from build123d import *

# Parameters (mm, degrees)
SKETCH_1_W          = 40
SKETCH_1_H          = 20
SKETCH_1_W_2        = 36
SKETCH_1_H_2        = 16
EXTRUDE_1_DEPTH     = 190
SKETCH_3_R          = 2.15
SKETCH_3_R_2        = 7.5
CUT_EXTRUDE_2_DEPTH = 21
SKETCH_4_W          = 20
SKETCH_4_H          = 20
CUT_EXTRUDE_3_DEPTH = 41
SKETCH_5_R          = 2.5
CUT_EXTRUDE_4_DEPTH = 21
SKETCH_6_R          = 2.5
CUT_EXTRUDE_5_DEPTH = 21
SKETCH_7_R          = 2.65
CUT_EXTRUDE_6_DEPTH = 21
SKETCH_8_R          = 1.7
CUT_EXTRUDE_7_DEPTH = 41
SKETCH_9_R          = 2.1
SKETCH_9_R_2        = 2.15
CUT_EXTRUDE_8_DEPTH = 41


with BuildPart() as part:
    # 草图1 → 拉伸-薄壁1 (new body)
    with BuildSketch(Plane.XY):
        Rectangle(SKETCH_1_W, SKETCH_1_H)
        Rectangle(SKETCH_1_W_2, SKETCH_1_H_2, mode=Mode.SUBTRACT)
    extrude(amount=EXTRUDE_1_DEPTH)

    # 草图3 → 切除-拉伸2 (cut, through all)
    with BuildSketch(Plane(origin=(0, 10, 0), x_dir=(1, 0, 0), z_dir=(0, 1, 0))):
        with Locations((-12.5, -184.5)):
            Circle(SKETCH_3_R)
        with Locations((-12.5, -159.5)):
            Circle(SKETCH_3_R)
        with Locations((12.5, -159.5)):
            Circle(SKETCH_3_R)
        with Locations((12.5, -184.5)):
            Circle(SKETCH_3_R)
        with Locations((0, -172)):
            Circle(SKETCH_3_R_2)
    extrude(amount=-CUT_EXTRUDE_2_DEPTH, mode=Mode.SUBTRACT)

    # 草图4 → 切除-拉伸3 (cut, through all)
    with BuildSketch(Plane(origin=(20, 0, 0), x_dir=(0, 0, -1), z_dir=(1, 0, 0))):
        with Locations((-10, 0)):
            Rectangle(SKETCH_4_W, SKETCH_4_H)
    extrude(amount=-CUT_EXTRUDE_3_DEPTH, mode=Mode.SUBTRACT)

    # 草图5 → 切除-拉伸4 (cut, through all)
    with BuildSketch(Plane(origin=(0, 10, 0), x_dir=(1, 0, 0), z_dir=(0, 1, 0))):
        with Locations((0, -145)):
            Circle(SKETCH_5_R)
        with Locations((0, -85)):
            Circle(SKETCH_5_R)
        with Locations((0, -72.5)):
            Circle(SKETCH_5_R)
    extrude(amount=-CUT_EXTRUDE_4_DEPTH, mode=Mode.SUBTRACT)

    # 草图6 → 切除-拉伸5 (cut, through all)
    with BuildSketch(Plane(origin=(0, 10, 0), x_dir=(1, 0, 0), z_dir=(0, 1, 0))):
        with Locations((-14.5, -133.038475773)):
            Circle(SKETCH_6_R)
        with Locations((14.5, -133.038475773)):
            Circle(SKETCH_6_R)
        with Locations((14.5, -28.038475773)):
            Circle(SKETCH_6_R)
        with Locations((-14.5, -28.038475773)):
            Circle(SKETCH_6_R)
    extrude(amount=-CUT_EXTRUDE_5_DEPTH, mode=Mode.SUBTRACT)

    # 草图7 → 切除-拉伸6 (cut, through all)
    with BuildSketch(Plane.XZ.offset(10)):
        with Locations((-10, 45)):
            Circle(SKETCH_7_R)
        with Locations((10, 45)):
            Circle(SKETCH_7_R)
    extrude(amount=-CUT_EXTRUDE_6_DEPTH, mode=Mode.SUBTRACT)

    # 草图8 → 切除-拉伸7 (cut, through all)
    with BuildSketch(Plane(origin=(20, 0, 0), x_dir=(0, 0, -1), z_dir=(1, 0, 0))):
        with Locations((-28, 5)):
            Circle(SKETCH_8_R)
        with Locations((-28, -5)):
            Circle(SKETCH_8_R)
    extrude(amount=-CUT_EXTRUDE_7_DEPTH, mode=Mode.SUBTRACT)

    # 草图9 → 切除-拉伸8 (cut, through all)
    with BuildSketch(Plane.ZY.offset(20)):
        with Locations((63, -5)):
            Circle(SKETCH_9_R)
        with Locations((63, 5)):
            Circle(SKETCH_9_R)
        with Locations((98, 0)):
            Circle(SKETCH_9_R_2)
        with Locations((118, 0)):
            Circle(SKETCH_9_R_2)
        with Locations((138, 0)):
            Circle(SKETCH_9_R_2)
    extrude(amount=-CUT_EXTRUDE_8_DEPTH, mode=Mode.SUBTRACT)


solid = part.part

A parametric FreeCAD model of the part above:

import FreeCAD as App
import Part
import Sketcher

V = App.Vector
Q = App.Units.Quantity

doc = App.newDocument("Part")
body = doc.addObject("PartDesign::Body", "Body")

# Sketch on XY plane
sketch1 = body.newObject("Sketcher::SketchObject", "Sketch")
sketch1.AttachmentSupport = (doc.getObject("XY_Plane"), [""])
sketch1.MapMode = "FlatFace"
sketch1.addGeometry([
    Part.LineSegment(V(-20, 10, 0), V(-20, -10, 0)),  # 0
    Part.LineSegment(V(-20, -10, 0), V(20, -10, 0)),  # 1
    Part.LineSegment(V(20, -10, 0), V(20, 10, 0)),  # 2
    Part.LineSegment(V(20, 10, 0), V(-20, 10, 0)),  # 3
    Part.LineSegment(V(18, -8, 0), V(-18, -8, 0)),  # 4
    Part.LineSegment(V(-18, -8, 0), V(-18, 8, 0)),  # 5
    Part.LineSegment(V(-18, 8, 0), V(18, 8, 0)),  # 6
    Part.LineSegment(V(18, 8, 0), V(18, -8, 0)),  # 7
], False)
sketch1.addConstraint([
    Sketcher.Constraint("Coincident", 0, 2, 1, 1),
    Sketcher.Constraint("Coincident", 1, 2, 2, 1),
    Sketcher.Constraint("Coincident", 2, 2, 3, 1),
    Sketcher.Constraint("Coincident", 3, 2, 0, 1),
    Sketcher.Constraint("Coincident", 4, 2, 5, 1),
    Sketcher.Constraint("Coincident", 5, 2, 6, 1),
    Sketcher.Constraint("Coincident", 6, 2, 7, 1),
    Sketcher.Constraint("Coincident", 7, 2, 4, 1),
    Sketcher.Constraint("Vertical", 0),
    Sketcher.Constraint("Horizontal", 1),
    Sketcher.Constraint("Vertical", 2),
    Sketcher.Constraint("Horizontal", 3),
    Sketcher.Constraint("Horizontal", 4),
    Sketcher.Constraint("Vertical", 5),
    Sketcher.Constraint("Horizontal", 6),
    Sketcher.Constraint("Vertical", 7),
    Sketcher.Constraint("Symmetric", 0, 2, 2, 2, -1, 1),
    Sketcher.Constraint("Symmetric", 4, 2, 6, 2, -1, 1),
    Sketcher.Constraint("DistanceX", 1, 1, 1, 2, Q("40 mm")),
    Sketcher.Constraint("DistanceX", 4, 2, 4, 1, Q("36 mm")),
    Sketcher.Constraint("DistanceY", 0, 2, 0, 1, Q("20 mm")),
    Sketcher.Constraint("DistanceY", 5, 1, 5, 2, Q("16 mm")),
])
pad1 = body.newObject("PartDesign::Pad", "Pad")
pad1.Profile = sketch1
pad1.Length = 190

# Sketch on XZ plane
sketch2 = body.newObject("Sketcher::SketchObject", "Sketch001")
sketch2.AttachmentSupport = (doc.getObject("XZ_Plane"), [""])
sketch2.MapMode = "FlatFace"
sketch2.AttachmentOffset = App.Placement(V(0, 0, -10), App.Rotation())
sketch2.addGeometry([
    Part.Circle(V(-12.5, 184.5, 0), V(0, 0, 1), 2.15),  # 0
    Part.Circle(V(-12.5, 159.5, 0), V(0, 0, 1), 2.15),  # 1
    Part.Circle(V(12.5, 159.5, 0), V(0, 0, 1), 2.15),  # 2
    Part.Circle(V(12.5, 184.5, 0), V(0, 0, 1), 2.15),  # 3
    Part.Circle(V(0, 172, 0), V(0, 0, 1), 7.5),  # 4
], False)
sketch2.addConstraint([
    Sketcher.Constraint("Equal", 0, 1),
    Sketcher.Constraint("Equal", 1, 2),
    Sketcher.Constraint("Equal", 2, 3),
    Sketcher.Constraint("Symmetric", 1, 3, 2, 3, -2),
    Sketcher.Constraint("Symmetric", 0, 3, 3, 3, -2),
    Sketcher.Constraint("PointOnObject", 4, 3, -2),
    Sketcher.Constraint("Vertical", 0, 3, 1, 3),
    Sketcher.Constraint("Diameter", 4, Q("15 mm")),
    Sketcher.Constraint("Diameter", 0, Q("4.3 mm")),
    Sketcher.Constraint("DistanceY", -1, 1, 4, 3, Q("172 mm")),
    Sketcher.Constraint("DistanceY", 1, 3, 0, 3, Q("25 mm")),
    Sketcher.Constraint("DistanceX", 1, 3, 2, 3, Q("25 mm")),
    Sketcher.Constraint("DistanceY", -1, 1, 0, 3, Q("184.5 mm")),
])
pocket1 = body.newObject("PartDesign::Pocket", "Pocket")
pocket1.Profile = sketch2
pocket1.Type = "ThroughAll"
pocket1.Reversed = True

# Sketch on YZ plane
sketch3 = body.newObject("Sketcher::SketchObject", "Sketch002")
sketch3.AttachmentSupport = (doc.getObject("YZ_Plane"), [""])
sketch3.MapMode = "FlatFace"
sketch3.AttachmentOffset = App.Placement(V(0, 0, 20), App.Rotation())
sketch3.addGeometry([
    Part.LineSegment(V(10, 20, 0), V(-10, 20, 0)),
    Part.LineSegment(V(-10, 20, 0), V(-10, 0, 0)),
    Part.LineSegment(V(-10, 0, 0), V(10, 0, 0)),
    Part.LineSegment(V(10, 0, 0), V(10, 20, 0)),
], False)
sketch3.addConstraint([
    Sketcher.Constraint("Coincident", 0, 2, 1, 1),
    Sketcher.Constraint("Coincident", 1, 2, 2, 1),
    Sketcher.Constraint("Coincident", 2, 2, 3, 1),
    Sketcher.Constraint("Coincident", 3, 2, 0, 1),
    Sketcher.Constraint("Horizontal", 0),
    Sketcher.Constraint("Vertical", 1),
    Sketcher.Constraint("Horizontal", 2),
    Sketcher.Constraint("Vertical", 3),
    Sketcher.Constraint("Symmetric", 1, 2, 2, 2, -1, 1),
    Sketcher.Constraint("Equal", 2, 1),
    Sketcher.Constraint("DistanceX", 0, 2, 0, 1, Q("20 mm")),
])
pocket2 = body.newObject("PartDesign::Pocket", "Pocket001")
pocket2.Profile = sketch3
pocket2.Type = "ThroughAll"

# Sketch on XZ plane
sketch4 = body.newObject("Sketcher::SketchObject", "Sketch003")
sketch4.AttachmentSupport = (doc.getObject("XZ_Plane"), [""])
sketch4.MapMode = "FlatFace"
sketch4.AttachmentOffset = App.Placement(V(0, 0, -10), App.Rotation())
sketch4.addGeometry([
    Part.Circle(V(0, 145, 0), V(0, 0, 1), 2.5),
    Part.Circle(V(0, 85, 0), V(0, 0, 1), 2.5),
    Part.Circle(V(0, 72.5, 0), V(0, 0, 1), 2.5),
], False)
sketch4.addConstraint([
    Sketcher.Constraint("Equal", 0, 1),
    Sketcher.Constraint("Equal", 1, 2),
    Sketcher.Constraint("PointOnObject", 0, 3, -2),
    Sketcher.Constraint("PointOnObject", 1, 3, -2),
    Sketcher.Constraint("PointOnObject", 2, 3, -2),
    Sketcher.Constraint("Diameter", 0, Q("5 mm")),
    Sketcher.Constraint("DistanceY", -1, 1, 0, 3, Q("145 mm")),
    Sketcher.Constraint("DistanceY", -1, 1, 1, 3, Q("85 mm")),
    Sketcher.Constraint("DistanceY", -1, 1, 2, 3, Q("72.5 mm")),
])
pocket3 = body.newObject("PartDesign::Pocket", "Pocket002")
pocket3.Profile = sketch4
pocket3.Type = "ThroughAll"
pocket3.Reversed = True

# Sketch on XZ plane
sketch5 = body.newObject("Sketcher::SketchObject", "Sketch004")
sketch5.AttachmentSupport = (doc.getObject("XZ_Plane"), [""])
sketch5.MapMode = "FlatFace"
sketch5.AttachmentOffset = App.Placement(V(0, 0, -10), App.Rotation())
sketch5.addGeometry([
    Part.Circle(V(-14.5, 133.038476, 0), V(0, 0, 1), 2.5),
    Part.Circle(V(14.5, 133.038476, 0), V(0, 0, 1), 2.5),
    Part.Circle(V(14.5, 28.038476, 0), V(0, 0, 1), 2.5),
    Part.Circle(V(-14.5, 28.038476, 0), V(0, 0, 1), 2.5),
], False)
sketch5.addConstraint([
    Sketcher.Constraint("Equal", 0, 1),
    Sketcher.Constraint("Equal", 1, 2),
    Sketcher.Constraint("Equal", 2, 3),
    Sketcher.Constraint("Symmetric", 0, 3, 1, 3, -2),
    Sketcher.Constraint("Symmetric", 2, 3, 3, 3, -2),
    Sketcher.Constraint("Vertical", 1, 3, 2, 3),
    Sketcher.Constraint("Diameter", 0, Q("5 mm")),
    Sketcher.Constraint("DistanceX", 0, 3, 1, 3, Q("29 mm")),
    Sketcher.Constraint("DistanceY", 2, 3, 1, 3, Q("105 mm")),
    Sketcher.Constraint("DistanceY", -1, 1, 0, 3, Q("133.038476 mm")),
])
pocket4 = body.newObject("PartDesign::Pocket", "Pocket003")
pocket4.Profile = sketch5
pocket4.Type = "ThroughAll"
pocket4.Reversed = True

# Sketch on XZ plane
sketch6 = body.newObject("Sketcher::SketchObject", "Sketch005")
sketch6.AttachmentSupport = (doc.getObject("XZ_Plane"), [""])
sketch6.MapMode = "FlatFace"
sketch6.AttachmentOffset = App.Placement(V(0, 0, 10), App.Rotation())
sketch6.addGeometry([
    Part.Circle(V(-10, 45, 0), V(0, 0, 1), 2.65),
    Part.Circle(V(10, 45, 0), V(0, 0, 1), 2.65),
], False)
sketch6.addConstraint([
    Sketcher.Constraint("Equal", 0, 1),
    Sketcher.Constraint("Symmetric", 0, 3, 1, 3, -2),
    Sketcher.Constraint("Diameter", 0, Q("5.3 mm")),
    Sketcher.Constraint("DistanceX", 0, 3, -1, 1, Q("10 mm")),
    Sketcher.Constraint("DistanceY", -1, 1, 0, 3, Q("45 mm")),
])
pocket5 = body.newObject("PartDesign::Pocket", "Pocket004")
pocket5.Profile = sketch6
pocket5.Type = "ThroughAll"

# Sketch on YZ plane
sketch7 = body.newObject("Sketcher::SketchObject", "Sketch006")
sketch7.AttachmentSupport = (doc.getObject("YZ_Plane"), [""])
sketch7.MapMode = "FlatFace"
sketch7.AttachmentOffset = App.Placement(V(0, 0, 20), App.Rotation())
sketch7.addGeometry([
    Part.Circle(V(5, 28, 0), V(0, 0, 1), 1.7),
    Part.Circle(V(-5, 28, 0), V(0, 0, 1), 1.7),
], False)
sketch7.addConstraint([
    Sketcher.Constraint("Equal", 0, 1),
    Sketcher.Constraint("Symmetric", 0, 3, 1, 3, -2),
    Sketcher.Constraint("Diameter", 0, Q("3.4 mm")),
    Sketcher.Constraint("DistanceX", -1, 1, 0, 3, Q("5 mm")),
    Sketcher.Constraint("DistanceY", -1, 1, 0, 3, Q("28 mm")),
])
pocket6 = body.newObject("PartDesign::Pocket", "Pocket005")
pocket6.Profile = sketch7
pocket6.Type = "ThroughAll"

# Sketch on YZ plane
sketch8 = body.newObject("Sketcher::SketchObject", "Sketch007")
sketch8.AttachmentSupport = (doc.getObject("YZ_Plane"), [""])
sketch8.MapMode = "FlatFace"
sketch8.AttachmentOffset = App.Placement(V(0, 0, -20), App.Rotation())
sketch8.addGeometry([
    Part.Circle(V(-5, 63, 0), V(0, 0, 1), 2.1),  # 0
    Part.Circle(V(5, 63, 0), V(0, 0, 1), 2.1),  # 1
    Part.Circle(V(0, 98, 0), V(0, 0, 1), 2.15),  # 2
    Part.Circle(V(0, 118, 0), V(0, 0, 1), 2.15),  # 3
    Part.Circle(V(0, 138, 0), V(0, 0, 1), 2.15),  # 4
], False)
sketch8.addConstraint([
    Sketcher.Constraint("Equal", 0, 1),
    Sketcher.Constraint("Equal", 2, 3),
    Sketcher.Constraint("Equal", 3, 4),
    Sketcher.Constraint("Symmetric", 0, 3, 1, 3, -2),
    Sketcher.Constraint("PointOnObject", 2, 3, -2),
    Sketcher.Constraint("PointOnObject", 3, 3, -2),
    Sketcher.Constraint("PointOnObject", 4, 3, -2),
    Sketcher.Constraint("Diameter", 0, Q("4.2 mm")),
    Sketcher.Constraint("Diameter", 2, Q("4.3 mm")),
    Sketcher.Constraint("DistanceX", 0, 3, -1, 1, Q("5 mm")),
    Sketcher.Constraint("DistanceY", -1, 1, 0, 3, Q("63 mm")),
    Sketcher.Constraint("DistanceY", -1, 1, 2, 3, Q("98 mm")),
    Sketcher.Constraint("DistanceY", -1, 1, 3, 3, Q("118 mm")),
    Sketcher.Constraint("DistanceY", -1, 1, 4, 3, Q("138 mm")),
])
pocket7 = body.newObject("PartDesign::Pocket", "Pocket006")
pocket7.Profile = sketch8
pocket7.Type = "ThroughAll"
pocket7.Reversed = True

doc.recompute()
